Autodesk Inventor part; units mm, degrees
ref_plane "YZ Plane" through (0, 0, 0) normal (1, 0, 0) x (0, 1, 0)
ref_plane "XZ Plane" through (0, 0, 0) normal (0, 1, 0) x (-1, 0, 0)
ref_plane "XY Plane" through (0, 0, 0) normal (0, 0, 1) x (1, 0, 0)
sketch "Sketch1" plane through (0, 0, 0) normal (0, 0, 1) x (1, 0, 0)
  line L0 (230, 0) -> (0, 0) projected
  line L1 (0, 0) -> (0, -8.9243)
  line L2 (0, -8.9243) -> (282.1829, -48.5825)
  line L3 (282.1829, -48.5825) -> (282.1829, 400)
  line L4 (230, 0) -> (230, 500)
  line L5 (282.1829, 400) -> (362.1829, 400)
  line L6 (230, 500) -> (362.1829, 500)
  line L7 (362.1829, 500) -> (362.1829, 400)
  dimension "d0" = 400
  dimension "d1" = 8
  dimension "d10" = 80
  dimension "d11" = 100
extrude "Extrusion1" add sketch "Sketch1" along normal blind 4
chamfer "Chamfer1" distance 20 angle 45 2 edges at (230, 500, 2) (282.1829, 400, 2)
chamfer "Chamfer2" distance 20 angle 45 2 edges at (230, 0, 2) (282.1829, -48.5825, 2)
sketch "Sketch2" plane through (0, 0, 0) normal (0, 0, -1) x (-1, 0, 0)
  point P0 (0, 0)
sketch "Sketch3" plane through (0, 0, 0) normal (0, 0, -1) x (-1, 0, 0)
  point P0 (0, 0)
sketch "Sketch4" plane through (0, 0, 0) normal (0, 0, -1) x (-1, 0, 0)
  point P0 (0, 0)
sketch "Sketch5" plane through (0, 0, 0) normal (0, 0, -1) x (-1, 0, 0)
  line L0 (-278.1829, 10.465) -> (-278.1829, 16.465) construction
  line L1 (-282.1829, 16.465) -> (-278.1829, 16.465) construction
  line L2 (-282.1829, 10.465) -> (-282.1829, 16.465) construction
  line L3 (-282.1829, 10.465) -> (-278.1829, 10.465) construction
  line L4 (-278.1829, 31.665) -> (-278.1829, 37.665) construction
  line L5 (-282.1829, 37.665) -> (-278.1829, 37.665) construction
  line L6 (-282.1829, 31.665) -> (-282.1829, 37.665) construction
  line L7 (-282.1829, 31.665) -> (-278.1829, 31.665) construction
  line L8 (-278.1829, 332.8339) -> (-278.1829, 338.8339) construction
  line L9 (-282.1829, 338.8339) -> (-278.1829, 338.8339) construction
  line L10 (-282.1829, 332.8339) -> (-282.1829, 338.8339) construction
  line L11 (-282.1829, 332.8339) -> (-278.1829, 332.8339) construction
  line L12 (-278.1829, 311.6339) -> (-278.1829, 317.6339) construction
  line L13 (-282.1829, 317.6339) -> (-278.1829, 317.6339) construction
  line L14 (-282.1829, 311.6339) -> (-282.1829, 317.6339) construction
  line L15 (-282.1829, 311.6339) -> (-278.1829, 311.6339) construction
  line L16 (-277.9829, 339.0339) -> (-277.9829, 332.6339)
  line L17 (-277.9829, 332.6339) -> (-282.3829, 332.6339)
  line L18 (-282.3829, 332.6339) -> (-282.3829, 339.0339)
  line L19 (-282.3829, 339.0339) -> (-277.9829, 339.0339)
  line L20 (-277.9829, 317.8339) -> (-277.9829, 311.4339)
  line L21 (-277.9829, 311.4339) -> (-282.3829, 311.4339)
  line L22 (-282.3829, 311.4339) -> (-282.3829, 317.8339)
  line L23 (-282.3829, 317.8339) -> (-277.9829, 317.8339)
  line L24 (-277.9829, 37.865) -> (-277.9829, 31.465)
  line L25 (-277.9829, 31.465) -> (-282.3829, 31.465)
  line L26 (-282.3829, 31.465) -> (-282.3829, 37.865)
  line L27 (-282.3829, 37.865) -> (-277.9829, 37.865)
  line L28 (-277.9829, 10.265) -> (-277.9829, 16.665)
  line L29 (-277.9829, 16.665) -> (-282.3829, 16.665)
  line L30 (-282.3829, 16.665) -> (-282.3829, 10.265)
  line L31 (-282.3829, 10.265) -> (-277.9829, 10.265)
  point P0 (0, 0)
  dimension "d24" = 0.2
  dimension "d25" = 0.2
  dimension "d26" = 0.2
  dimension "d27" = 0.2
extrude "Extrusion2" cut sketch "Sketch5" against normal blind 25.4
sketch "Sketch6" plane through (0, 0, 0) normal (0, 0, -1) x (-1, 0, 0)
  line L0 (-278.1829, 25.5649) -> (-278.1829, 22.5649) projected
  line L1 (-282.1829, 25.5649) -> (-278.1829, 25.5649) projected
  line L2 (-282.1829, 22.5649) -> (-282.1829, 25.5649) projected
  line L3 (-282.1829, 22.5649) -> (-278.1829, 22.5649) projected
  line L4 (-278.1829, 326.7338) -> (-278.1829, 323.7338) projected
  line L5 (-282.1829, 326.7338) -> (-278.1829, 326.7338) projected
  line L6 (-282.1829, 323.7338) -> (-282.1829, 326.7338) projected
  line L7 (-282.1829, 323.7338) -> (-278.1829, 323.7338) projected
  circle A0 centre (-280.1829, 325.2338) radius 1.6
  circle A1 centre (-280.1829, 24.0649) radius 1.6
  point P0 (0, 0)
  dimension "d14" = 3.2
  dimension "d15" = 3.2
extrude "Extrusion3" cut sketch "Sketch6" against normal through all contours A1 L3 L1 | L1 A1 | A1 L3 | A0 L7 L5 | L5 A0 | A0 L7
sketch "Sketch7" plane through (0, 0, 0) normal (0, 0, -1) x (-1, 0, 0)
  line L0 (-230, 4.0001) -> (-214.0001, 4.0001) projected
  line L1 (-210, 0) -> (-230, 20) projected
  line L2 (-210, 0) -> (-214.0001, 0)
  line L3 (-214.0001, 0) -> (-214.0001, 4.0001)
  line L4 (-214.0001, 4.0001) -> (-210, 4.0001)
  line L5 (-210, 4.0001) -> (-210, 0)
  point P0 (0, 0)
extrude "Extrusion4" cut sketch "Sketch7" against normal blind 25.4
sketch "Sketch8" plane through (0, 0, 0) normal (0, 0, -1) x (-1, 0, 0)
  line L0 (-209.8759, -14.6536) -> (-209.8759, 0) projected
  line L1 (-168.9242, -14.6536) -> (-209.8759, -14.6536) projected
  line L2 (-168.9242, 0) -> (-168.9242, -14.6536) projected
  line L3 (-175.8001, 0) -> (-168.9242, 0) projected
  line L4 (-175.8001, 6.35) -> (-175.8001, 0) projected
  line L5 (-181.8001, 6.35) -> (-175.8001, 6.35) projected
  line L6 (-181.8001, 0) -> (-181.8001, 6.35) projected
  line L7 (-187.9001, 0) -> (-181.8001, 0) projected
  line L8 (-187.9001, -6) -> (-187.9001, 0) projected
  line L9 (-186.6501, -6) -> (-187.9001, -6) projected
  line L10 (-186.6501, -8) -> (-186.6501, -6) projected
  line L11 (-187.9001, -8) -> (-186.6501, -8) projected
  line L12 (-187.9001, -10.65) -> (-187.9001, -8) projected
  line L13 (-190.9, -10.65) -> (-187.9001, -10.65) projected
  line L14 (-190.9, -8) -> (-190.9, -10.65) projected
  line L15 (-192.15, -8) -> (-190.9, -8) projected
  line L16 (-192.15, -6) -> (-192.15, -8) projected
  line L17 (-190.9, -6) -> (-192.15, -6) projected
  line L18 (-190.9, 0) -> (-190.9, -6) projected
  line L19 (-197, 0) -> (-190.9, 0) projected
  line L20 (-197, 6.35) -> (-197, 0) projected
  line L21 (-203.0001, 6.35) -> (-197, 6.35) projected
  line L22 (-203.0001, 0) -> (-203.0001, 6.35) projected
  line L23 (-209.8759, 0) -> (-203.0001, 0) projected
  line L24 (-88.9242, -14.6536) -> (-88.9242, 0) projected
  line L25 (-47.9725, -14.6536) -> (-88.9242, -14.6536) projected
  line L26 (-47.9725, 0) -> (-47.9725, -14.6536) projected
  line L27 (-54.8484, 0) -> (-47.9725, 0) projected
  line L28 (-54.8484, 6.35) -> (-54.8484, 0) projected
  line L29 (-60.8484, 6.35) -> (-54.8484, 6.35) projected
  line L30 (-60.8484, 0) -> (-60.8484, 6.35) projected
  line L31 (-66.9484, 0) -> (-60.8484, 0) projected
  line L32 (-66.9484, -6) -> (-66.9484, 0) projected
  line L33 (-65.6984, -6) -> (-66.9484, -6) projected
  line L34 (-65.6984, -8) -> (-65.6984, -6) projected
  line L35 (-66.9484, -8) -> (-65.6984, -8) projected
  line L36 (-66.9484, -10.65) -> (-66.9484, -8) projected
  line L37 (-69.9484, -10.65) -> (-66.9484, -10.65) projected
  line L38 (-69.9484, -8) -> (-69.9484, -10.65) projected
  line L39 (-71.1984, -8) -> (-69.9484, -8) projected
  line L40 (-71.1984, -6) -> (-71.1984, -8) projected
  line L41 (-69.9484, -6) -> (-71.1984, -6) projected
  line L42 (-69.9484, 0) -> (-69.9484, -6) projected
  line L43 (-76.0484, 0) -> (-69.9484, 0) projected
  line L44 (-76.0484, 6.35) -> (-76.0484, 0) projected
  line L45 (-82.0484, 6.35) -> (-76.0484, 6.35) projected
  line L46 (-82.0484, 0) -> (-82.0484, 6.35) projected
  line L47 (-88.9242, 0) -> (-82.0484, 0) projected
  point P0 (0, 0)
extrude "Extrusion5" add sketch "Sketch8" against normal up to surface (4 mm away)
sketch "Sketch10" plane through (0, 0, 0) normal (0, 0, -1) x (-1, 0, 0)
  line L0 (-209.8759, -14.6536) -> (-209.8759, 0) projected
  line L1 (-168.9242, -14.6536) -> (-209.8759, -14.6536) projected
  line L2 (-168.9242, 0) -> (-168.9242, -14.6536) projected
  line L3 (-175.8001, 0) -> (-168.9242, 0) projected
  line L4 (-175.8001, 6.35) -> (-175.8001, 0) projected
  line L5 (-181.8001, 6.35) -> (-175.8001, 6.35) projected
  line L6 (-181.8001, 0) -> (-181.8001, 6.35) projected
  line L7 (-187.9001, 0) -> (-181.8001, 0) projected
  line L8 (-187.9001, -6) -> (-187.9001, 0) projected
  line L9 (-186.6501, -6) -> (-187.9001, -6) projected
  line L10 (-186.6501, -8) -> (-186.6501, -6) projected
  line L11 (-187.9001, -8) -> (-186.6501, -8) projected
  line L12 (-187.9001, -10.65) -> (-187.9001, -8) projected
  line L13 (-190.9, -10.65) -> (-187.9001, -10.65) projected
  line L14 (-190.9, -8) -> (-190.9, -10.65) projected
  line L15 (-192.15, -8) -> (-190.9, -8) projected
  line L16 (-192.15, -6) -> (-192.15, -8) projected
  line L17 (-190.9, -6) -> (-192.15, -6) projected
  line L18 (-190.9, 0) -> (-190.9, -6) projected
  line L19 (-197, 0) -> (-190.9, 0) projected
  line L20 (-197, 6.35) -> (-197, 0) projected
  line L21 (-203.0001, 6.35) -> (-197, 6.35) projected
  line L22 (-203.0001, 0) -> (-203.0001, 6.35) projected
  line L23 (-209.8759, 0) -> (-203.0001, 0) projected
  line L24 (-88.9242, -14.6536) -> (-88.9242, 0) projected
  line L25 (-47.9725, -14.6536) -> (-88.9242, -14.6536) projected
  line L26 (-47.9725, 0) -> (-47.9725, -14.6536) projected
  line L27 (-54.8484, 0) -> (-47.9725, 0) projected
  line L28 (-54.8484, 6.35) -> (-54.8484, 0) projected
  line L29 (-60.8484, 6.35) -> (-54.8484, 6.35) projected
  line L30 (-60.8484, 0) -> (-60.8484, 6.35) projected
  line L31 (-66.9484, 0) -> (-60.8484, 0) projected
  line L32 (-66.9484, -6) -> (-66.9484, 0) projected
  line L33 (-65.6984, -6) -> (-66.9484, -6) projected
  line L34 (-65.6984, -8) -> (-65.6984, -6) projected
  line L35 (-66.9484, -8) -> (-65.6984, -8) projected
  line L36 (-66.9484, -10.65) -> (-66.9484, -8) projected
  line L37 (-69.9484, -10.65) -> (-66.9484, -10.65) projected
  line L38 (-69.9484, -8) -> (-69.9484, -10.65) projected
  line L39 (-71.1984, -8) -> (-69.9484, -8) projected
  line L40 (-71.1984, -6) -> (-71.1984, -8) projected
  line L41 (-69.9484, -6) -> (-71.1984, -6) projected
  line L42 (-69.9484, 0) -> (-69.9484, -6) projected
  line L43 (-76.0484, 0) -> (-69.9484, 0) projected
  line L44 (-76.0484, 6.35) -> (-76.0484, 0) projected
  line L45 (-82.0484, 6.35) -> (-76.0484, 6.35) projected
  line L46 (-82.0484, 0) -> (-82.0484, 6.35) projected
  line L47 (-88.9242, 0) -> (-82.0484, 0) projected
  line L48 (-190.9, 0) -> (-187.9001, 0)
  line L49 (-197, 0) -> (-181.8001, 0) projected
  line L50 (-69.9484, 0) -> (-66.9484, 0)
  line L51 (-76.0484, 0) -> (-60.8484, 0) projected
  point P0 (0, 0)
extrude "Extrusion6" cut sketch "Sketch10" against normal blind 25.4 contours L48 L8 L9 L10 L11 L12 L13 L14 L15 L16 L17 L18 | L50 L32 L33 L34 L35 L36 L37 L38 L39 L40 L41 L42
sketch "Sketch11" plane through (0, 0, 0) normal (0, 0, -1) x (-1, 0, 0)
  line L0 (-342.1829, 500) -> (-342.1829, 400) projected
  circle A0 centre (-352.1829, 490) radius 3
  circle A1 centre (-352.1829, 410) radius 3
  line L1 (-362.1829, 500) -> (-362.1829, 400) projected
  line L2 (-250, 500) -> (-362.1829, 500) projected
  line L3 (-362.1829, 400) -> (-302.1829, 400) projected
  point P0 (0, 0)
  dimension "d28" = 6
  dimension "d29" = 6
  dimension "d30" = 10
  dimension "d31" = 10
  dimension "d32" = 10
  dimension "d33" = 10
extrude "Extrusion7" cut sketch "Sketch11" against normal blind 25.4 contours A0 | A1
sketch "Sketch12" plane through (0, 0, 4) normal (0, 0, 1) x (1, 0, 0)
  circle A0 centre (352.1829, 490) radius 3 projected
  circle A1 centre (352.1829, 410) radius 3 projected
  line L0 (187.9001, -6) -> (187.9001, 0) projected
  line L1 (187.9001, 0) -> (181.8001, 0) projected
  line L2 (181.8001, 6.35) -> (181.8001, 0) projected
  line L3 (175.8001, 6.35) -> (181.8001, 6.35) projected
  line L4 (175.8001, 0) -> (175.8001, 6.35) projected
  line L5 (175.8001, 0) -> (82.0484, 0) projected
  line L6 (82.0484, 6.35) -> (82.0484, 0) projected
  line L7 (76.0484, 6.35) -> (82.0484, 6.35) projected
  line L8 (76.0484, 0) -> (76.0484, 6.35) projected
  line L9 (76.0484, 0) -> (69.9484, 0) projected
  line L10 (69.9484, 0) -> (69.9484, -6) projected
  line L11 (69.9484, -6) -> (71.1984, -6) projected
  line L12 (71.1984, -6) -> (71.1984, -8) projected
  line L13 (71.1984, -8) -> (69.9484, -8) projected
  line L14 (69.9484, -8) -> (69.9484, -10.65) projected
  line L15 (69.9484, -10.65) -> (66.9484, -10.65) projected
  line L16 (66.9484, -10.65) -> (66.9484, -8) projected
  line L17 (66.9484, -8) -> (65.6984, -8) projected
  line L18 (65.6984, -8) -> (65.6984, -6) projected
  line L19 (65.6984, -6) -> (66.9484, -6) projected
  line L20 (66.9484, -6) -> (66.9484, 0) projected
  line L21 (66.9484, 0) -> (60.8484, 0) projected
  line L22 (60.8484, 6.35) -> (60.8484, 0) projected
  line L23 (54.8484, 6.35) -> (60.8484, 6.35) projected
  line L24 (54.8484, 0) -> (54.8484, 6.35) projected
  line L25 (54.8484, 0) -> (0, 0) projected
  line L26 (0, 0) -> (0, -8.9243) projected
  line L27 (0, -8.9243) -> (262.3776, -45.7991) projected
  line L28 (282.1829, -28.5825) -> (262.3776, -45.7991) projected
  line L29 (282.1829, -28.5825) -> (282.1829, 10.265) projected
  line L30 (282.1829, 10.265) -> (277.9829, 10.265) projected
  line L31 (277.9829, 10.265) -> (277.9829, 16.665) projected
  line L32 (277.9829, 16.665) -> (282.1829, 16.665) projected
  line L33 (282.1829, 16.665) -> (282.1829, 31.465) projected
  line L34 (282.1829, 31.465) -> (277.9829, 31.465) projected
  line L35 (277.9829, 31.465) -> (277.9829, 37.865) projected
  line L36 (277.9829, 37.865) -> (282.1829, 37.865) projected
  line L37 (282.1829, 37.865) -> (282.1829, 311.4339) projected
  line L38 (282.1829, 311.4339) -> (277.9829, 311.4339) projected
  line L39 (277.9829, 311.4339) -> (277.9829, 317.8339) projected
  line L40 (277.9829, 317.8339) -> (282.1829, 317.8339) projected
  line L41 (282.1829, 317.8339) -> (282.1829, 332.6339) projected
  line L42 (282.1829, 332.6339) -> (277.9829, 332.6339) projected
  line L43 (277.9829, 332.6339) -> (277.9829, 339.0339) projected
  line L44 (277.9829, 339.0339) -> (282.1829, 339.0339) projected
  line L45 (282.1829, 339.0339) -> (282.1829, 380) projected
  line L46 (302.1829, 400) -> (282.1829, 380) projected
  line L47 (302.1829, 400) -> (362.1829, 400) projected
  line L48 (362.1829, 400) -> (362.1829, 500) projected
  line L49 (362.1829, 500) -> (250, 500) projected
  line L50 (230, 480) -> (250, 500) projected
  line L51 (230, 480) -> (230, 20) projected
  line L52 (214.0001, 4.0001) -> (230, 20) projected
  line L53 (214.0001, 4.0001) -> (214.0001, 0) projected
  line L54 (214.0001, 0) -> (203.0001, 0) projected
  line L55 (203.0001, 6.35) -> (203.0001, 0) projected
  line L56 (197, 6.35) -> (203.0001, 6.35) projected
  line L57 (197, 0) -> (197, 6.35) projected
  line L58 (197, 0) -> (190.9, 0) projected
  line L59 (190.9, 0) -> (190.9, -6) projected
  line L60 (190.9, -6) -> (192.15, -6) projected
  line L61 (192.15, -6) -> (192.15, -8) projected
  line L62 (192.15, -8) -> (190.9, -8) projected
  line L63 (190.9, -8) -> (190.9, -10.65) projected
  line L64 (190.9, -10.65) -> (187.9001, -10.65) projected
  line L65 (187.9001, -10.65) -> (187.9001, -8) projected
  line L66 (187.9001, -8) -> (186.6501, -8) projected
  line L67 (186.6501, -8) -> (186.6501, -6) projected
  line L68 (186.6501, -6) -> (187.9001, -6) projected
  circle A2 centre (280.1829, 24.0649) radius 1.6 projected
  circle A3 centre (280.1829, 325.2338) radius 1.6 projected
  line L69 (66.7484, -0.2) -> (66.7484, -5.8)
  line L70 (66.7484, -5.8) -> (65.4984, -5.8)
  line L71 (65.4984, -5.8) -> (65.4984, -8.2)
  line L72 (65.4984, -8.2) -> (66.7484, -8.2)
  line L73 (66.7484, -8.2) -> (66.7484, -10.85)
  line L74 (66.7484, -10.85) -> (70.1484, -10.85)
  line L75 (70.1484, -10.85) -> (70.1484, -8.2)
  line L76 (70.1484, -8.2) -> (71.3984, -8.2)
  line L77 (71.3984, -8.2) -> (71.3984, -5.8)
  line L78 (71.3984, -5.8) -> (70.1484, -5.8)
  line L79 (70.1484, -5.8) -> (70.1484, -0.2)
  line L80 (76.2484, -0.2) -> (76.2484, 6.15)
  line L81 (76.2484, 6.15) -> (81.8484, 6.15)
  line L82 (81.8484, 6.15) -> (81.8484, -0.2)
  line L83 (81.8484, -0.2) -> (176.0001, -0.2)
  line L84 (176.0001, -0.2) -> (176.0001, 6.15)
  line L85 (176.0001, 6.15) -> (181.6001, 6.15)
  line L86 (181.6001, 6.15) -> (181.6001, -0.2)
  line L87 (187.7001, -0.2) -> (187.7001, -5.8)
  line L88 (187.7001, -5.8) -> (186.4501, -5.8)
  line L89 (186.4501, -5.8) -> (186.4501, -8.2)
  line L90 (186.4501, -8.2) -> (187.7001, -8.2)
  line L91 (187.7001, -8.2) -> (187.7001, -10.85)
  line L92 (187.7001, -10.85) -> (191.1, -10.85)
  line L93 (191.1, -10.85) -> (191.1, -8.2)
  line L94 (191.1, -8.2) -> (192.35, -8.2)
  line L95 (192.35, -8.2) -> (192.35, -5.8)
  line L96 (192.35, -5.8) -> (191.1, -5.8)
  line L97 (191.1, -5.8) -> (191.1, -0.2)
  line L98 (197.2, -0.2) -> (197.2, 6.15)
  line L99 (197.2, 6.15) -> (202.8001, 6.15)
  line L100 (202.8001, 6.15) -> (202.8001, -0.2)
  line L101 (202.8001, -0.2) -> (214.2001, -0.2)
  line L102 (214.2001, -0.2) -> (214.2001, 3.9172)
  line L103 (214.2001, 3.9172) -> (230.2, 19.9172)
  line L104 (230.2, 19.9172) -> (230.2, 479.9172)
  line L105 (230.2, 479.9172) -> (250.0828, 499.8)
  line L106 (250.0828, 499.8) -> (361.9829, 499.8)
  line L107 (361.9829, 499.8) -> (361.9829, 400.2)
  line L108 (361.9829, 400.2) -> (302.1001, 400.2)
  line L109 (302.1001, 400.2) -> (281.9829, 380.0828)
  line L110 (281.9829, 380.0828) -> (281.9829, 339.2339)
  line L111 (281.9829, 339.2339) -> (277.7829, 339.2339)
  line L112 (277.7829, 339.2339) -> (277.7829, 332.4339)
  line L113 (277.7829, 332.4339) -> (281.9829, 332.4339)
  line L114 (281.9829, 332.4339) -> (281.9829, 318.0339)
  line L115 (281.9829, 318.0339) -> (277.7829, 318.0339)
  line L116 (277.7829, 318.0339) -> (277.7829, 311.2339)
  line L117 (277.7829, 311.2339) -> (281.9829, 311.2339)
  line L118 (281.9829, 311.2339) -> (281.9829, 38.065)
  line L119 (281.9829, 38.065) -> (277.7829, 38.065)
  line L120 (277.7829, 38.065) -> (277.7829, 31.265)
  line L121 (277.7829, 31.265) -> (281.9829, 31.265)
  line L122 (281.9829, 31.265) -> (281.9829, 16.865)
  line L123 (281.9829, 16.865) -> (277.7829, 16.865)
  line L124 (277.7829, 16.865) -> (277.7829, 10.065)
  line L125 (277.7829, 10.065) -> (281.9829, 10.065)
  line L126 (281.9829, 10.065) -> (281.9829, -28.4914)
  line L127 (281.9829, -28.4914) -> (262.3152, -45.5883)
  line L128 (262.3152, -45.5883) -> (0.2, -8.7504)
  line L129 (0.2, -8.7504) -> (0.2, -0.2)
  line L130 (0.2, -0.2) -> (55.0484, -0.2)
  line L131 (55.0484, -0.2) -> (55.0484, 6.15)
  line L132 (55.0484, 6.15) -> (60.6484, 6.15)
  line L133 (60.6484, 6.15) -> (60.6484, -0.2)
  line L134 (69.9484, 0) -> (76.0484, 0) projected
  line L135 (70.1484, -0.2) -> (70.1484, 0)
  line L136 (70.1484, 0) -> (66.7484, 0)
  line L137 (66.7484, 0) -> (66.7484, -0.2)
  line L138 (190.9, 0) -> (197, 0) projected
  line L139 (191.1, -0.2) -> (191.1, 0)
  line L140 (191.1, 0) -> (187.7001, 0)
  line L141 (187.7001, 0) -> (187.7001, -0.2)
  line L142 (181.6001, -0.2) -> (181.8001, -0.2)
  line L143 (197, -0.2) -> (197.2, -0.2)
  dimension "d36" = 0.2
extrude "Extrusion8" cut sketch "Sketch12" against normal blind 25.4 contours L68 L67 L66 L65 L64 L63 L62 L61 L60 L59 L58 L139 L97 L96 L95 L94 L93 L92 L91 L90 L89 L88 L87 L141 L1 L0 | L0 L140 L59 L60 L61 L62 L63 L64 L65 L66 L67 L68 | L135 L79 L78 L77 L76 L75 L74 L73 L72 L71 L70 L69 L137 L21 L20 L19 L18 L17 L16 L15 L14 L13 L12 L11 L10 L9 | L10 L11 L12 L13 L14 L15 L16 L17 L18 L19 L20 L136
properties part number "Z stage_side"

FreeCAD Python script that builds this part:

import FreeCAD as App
import Part
import Sketcher

V = App.Vector
Q = App.Units.Quantity


def edges_at(feature, points):
    """Names of the edges that pass closest to the given points."""
    edges = feature.Shape.Edges
    near = lambda p: min(range(len(edges)), key=lambda i: edges[i].distToShape(Part.Vertex(*p))[0])
    return sorted({f"Edge{near(p) + 1}" for p in points})


def add_polygon(sketch, points):
    """Adds a closed chain of lines whose ends are joined by coincident constraints."""
    first, n = sketch.GeometryCount, len(points)
    for a, b in zip(points, points[1:] + points[:1]):
        sketch.addGeometry(Part.LineSegment(App.Vector(*a, 0), App.Vector(*b, 0)), False)
    for i in range(n):
        sketch.addConstraint(Sketcher.Constraint("Coincident", first + i, 2, first + (i + 1) % n, 1))

doc = App.newDocument("Part")
params = doc.addObject("Spreadsheet::Sheet", "Params")
for row, (alias, value) in enumerate([
    ("sketch1_width", "80 mm"),
    ("sketch1_height", "100 mm"),
    ("sketch1_width2", "230 mm"),
    ("pad1_length", "4 mm"),
    ("chamfer_size", "20 mm"),
    ("chamfer2_size", "20 mm"),
    ("sketch2_width", "4.4 mm"),
    ("sketch2_height", "6.4 mm"),
    ("pocket1_length", "25.4 mm"),
    ("sketch3_diameter", "3.2 mm"),
    ("sketch4_width", "4 mm"),
    ("pocket3_length", "25.4 mm"),
    ("sketch5_width", "6 mm"),
    ("sketch5_width2", "3 mm"),
    ("sketch5_height", "2 mm"),
    ("sketch5_width3", "6.1 mm"),
    ("sketch5_width4", "1.25 mm"),
    ("pad2_length", "4 mm"),
    ("sketch6_width", "3 mm"),
    ("sketch6_height", "6 mm"),
    ("sketch6_height2", "2 mm"),
    ("sketch6_width2", "1.25 mm"),
    ("sketch6_height3", "2.65 mm"),
    ("pocket4_length", "25.4 mm"),
    ("sketch7_diameter", "6 mm"),
    ("pocket5_length", "25.4 mm"),
    ("sketch8_width", "3.4 mm"),
    ("sketch8_height", "5.8 mm"),
    ("sketch8_height2", "2.4 mm"),
    ("sketch8_width2", "1.25 mm"),
    ("sketch8_height3", "2.65 mm"),
    ("pocket6_length", "25.4 mm"),
], start=1):
    params.set(f"A{row}", alias)
    params.set(f"B{row}", "=" + value)
    params.setAlias(f"B{row}", alias)

body = doc.addObject("PartDesign::Body", "Body")

sketch1 = doc.addObject("Sketcher::SketchObject", "Sketch")
body.addObject(sketch1)
sketch1.AttachmentSupport = (doc.XY_Plane, [""])
sketch1.MapMode = "FlatFace"
add_polygon(sketch1, [(230, 500), (230, 0), (0, 0), (0, -8.9243), (282.1829, -48.5825), (282.1829, 400), (362.1829, 400), (362.1829, 500)])
sketch1.addConstraint(Sketcher.Constraint("Vertical", 0))
sketch1.addConstraint(Sketcher.Constraint("Horizontal", 1))
sketch1.addConstraint(Sketcher.Constraint("Vertical", 2))
sketch1.addConstraint(Sketcher.Constraint("Vertical", 4))
sketch1.addConstraint(Sketcher.Constraint("Horizontal", 5))
sketch1.addConstraint(Sketcher.Constraint("Vertical", 6))
sketch1.addConstraint(Sketcher.Constraint("Horizontal", 7))
sketch1.addConstraint(Sketcher.Constraint("Coincident", 1, 2, -1, 1))
sketch1.addConstraint(Sketcher.Constraint("DistanceX", 5, 1, 5, 2, Q("80 mm")))
sketch1.addConstraint(Sketcher.Constraint("DistanceY", 6, 1, 6, 2, Q("100 mm")))
sketch1.addConstraint(Sketcher.Constraint("Angle", 3, Q("-8 deg")))
sketch1.addConstraint(Sketcher.Constraint("DistanceY", -1, 1, 4, 2, Q("400 mm")))
sketch1.addConstraint(Sketcher.Constraint("DistanceX", 1, 2, 1, 1, Q("230 mm")))
sketch1.addConstraint(Sketcher.Constraint("DistanceX", 7, 2, 7, 1, Q("132.183 mm")))
sketch1.addConstraint(Sketcher.Constraint("DistanceY", 2, 2, 2, 1, Q("8.9243 mm")))
sketch1.setExpression("Constraints[16]", "Params.sketch1_width")
sketch1.setExpression("Constraints[17]", "Params.sketch1_height")
sketch1.setExpression("Constraints[20]", "Params.sketch1_width2")
pad1 = doc.addObject("PartDesign::Pad", "Pad")
body.addObject(pad1)
pad1.Profile = sketch1
pad1.setExpression("Length", "Params.pad1_length")
doc.recompute()

chamfer = doc.addObject("PartDesign::Chamfer", "Chamfer")
body.addObject(chamfer)
chamfer.Base = (pad1, edges_at(pad1, [(230, 500, 2), (282.183, 400, 2)]))
chamfer.setExpression("Size", "Params.chamfer_size")
doc.recompute()

chamfer2 = doc.addObject("PartDesign::Chamfer", "Chamfer001")
body.addObject(chamfer2)
chamfer2.Base = (chamfer, edges_at(chamfer, [(230, 0, 2), (282.183, -48.583, 2)]))
chamfer2.setExpression("Size", "Params.chamfer2_size")

sketch2 = doc.addObject("Sketcher::SketchObject", "Sketch001")
body.addObject(sketch2)
sketch2.AttachmentSupport = (doc.XY_Plane, [""])
sketch2.MapMode = "FlatFace"
add_polygon(sketch2, [(277.9829, 332.6339), (277.9829, 339.0339), (282.3829, 339.0339), (282.3829, 332.6339)])
add_polygon(sketch2, [(277.9829, 311.4339), (277.9829, 317.8339), (282.3829, 317.8339), (282.3829, 311.4339)])
add_polygon(sketch2, [(277.9829, 31.465), (277.9829, 37.865), (282.3829, 37.865), (282.3829, 31.465)])
add_polygon(sketch2, [(282.3829, 10.265), (277.9829, 10.265), (277.9829, 16.665), (282.3829, 16.665)])
sketch2.addConstraint(Sketcher.Constraint("Vertical", 0))
sketch2.addConstraint(Sketcher.Constraint("Horizontal", 1))
sketch2.addConstraint(Sketcher.Constraint("Vertical", 2))
sketch2.addConstraint(Sketcher.Constraint("Horizontal", 3))
sketch2.addConstraint(Sketcher.Constraint("Vertical", 4))
sketch2.addConstraint(Sketcher.Constraint("Horizontal", 5))
sketch2.addConstraint(Sketcher.Constraint("Vertical", 6))
sketch2.addConstraint(Sketcher.Constraint("Horizontal", 7))
sketch2.addConstraint(Sketcher.Constraint("Vertical", 8))
sketch2.addConstraint(Sketcher.Constraint("Horizontal", 9))
sketch2.addConstraint(Sketcher.Constraint("Vertical", 10))
sketch2.addConstraint(Sketcher.Constraint("Horizontal", 11))
sketch2.addConstraint(Sketcher.Constraint("Horizontal", 12))
sketch2.addConstraint(Sketcher.Constraint("Vertical", 13))
sketch2.addConstraint(Sketcher.Constraint("Horizontal", 14))
sketch2.addConstraint(Sketcher.Constraint("Vertical", 15))
sketch2.addConstraint(Sketcher.Constraint("Vertical", 3, 2, 4, 2))
sketch2.addConstraint(Sketcher.Constraint("Vertical", 2, 2, 5, 2))
sketch2.addConstraint(Sketcher.Constraint("Vertical", 7, 2, 8, 2))
sketch2.addConstraint(Sketcher.Constraint("Vertical", 6, 2, 9, 2))
sketch2.addConstraint(Sketcher.Constraint("Vertical", 11, 2, 12, 2))
sketch2.addConstraint(Sketcher.Constraint("Vertical", 10, 2, 14, 2))
sketch2.addConstraint(Sketcher.Constraint("Equal", 2, 4))
sketch2.addConstraint(Sketcher.Constraint("Equal", 6, 8))
sketch2.addConstraint(Sketcher.Constraint("Equal", 10, 13))
sketch2.addConstraint(Sketcher.Constraint("DistanceX", 1, 1, 1, 2, Q("4.4 mm")))
sketch2.addConstraint(Sketcher.Constraint("DistanceY", 0, 1, 0, 2, Q("6.4 mm")))
sketch2.addConstraint(Sketcher.Constraint("DistanceY", 4, 2, 3, 2, Q("14.8 mm")))
sketch2.addConstraint(Sketcher.Constraint("DistanceY", 12, 2, 11, 2, Q("21.2 mm")))
sketch2.addConstraint(Sketcher.Constraint("DistanceX", -1, 1, 0, 2, Q("277.983 mm")))
sketch2.addConstraint(Sketcher.Constraint("DistanceY", -1, 1, 0, 2, Q("339.034 mm")))
sketch2.addConstraint(Sketcher.Constraint("DistanceY", -1, 1, 8, 2, Q("37.865 mm")))
sketch2.setExpression("Constraints[41]", "Params.sketch2_width")
sketch2.setExpression("Constraints[42]", "Params.sketch2_height")
pocket1 = doc.addObject("PartDesign::Pocket", "Pocket")
body.addObject(pocket1)
pocket1.Profile = sketch2
pocket1.setExpression("Length", "Params.pocket1_length")
pocket1.Reversed = True

sketch3 = doc.addObject("Sketcher::SketchObject", "Sketch002")
body.addObject(sketch3)
sketch3.AttachmentSupport = (doc.XY_Plane, [""])
sketch3.MapMode = "FlatFace"
sketch3.addGeometry(Part.Circle(V(280.1829, 24.0649, 0), V(0, 0, 1), 1.6), False)
sketch3.addGeometry(Part.Circle(V(280.1829, 325.2338, 0), V(0, 0, 1), 1.6), False)
sketch3.addConstraint(Sketcher.Constraint("Equal", 0, 1))
sketch3.addConstraint(Sketcher.Constraint("Vertical", 0, 3, 1, 3))
sketch3.addConstraint(Sketcher.Constraint("Diameter", 0, Q("3.2 mm")))
sketch3.addConstraint(Sketcher.Constraint("DistanceX", -1, 1, 0, 3, Q("280.183 mm")))
sketch3.addConstraint(Sketcher.Constraint("DistanceY", -1, 1, 0, 3, Q("24.065 mm")))
sketch3.addConstraint(Sketcher.Constraint("DistanceY", 0, 3, 1, 3, Q("301.169 mm")))
sketch3.setExpression("Constraints[2]", "Params.sketch3_diameter")
pocket2 = doc.addObject("PartDesign::Pocket", "Pocket001")
body.addObject(pocket2)
pocket2.Profile = sketch3
pocket2.Type = "ThroughAll"
pocket2.Reversed = True

sketch4 = doc.addObject("Sketcher::SketchObject", "Sketch003")
body.addObject(sketch4)
sketch4.AttachmentSupport = (doc.XY_Plane, [""])
sketch4.MapMode = "FlatFace"
add_polygon(sketch4, [(214.0001, 0), (210, 0), (210, 4.0001), (214.0001, 4.0001)])
sketch4.addConstraint(Sketcher.Constraint("Horizontal", 0))
sketch4.addConstraint(Sketcher.Constraint("Vertical", 1))
sketch4.addConstraint(Sketcher.Constraint("Horizontal", 2))
sketch4.addConstraint(Sketcher.Constraint("Vertical", 3))
sketch4.addConstraint(Sketcher.Constraint("PointOnObject", 0, 2, -1))
sketch4.addConstraint(Sketcher.Constraint("Equal", 2, 1))
sketch4.addConstraint(Sketcher.Constraint("DistanceX", 0, 2, 0, 1, Q("4 mm")))
sketch4.addConstraint(Sketcher.Constraint("DistanceX", -1, 1, 0, 2, Q("210 mm")))
sketch4.setExpression("Constraints[10]", "Params.sketch4_width")
pocket3 = doc.addObject("PartDesign::Pocket", "Pocket002")
body.addObject(pocket3)
pocket3.Profile = sketch4
pocket3.setExpression("Length", "Params.pocket3_length")
pocket3.Reversed = True

sketch5 = doc.addObject("Sketcher::SketchObject", "Sketch004")
body.addObject(sketch5)
sketch5.AttachmentSupport = (doc.XY_Plane, [""])
sketch5.MapMode = "FlatFace"
add_polygon(sketch5, [(209.8759, 0), (209.8759, -14.6536), (168.9242, -14.6536), (168.9242, 0), (175.8001, 0), (175.8001, 6.35), (181.8001, 6.35), (181.8001, 0), (187.9001, 0), (187.9001, -6), (186.6501, -6), (186.6501, -8), (187.9001, -8), (187.9001, -10.65), (190.9, -10.65), (190.9, -8), (192.15, -8), (192.15, -6), (190.9, -6), (190.9, 0), (197, 0), (197, 6.35), (203.0001, 6.35), (203.0001, 0)])
add_polygon(sketch5, [(88.9242, 0), (88.9242, -14.6536), (47.9725, -14.6536), (47.9725, 0), (54.8484, 0), (54.8484, 6.35), (60.8484, 6.35), (60.8484, 0), (66.9484, 0), (66.9484, -6), (65.6984, -6), (65.6984, -8), (66.9484, -8), (66.9484, -10.65), (69.9484, -10.65), (69.9484, -8), (71.1984, -8), (71.1984, -6), (69.9484, -6), (69.9484, 0), (76.0484, 0), (76.0484, 6.35), (82.0484, 6.35), (82.0484, 0)])
sketch5.addConstraint(Sketcher.Constraint("Vertical", 0))
sketch5.addConstraint(Sketcher.Constraint("Horizontal", 1))
sketch5.addConstraint(Sketcher.Constraint("Vertical", 2))
sketch5.addConstraint(Sketcher.Constraint("Horizontal", 3))
sketch5.addConstraint(Sketcher.Constraint("Vertical", 4))
sketch5.addConstraint(Sketcher.Constraint("Horizontal", 5))
sketch5.addConstraint(Sketcher.Constraint("Vertical", 6))
sketch5.addConstraint(Sketcher.Constraint("Horizontal", 7))
sketch5.addConstraint(Sketcher.Constraint("Vertical", 8))
sketch5.addConstraint(Sketcher.Constraint("Horizontal", 9))
sketch5.addConstraint(Sketcher.Constraint("Vertical", 10))
sketch5.addConstraint(Sketcher.Constraint("Horizontal", 11))
sketch5.addConstraint(Sketcher.Constraint("Vertical", 12))
sketch5.addConstraint(Sketcher.Constraint("Horizontal", 13))
sketch5.addConstraint(Sketcher.Constraint("Vertical", 14))
sketch5.addConstraint(Sketcher.Constraint("Horizontal", 15))
sketch5.addConstraint(Sketcher.Constraint("Vertical", 16))
sketch5.addConstraint(Sketcher.Constraint("Horizontal", 17))
sketch5.addConstraint(Sketcher.Constraint("Vertical", 18))
sketch5.addConstraint(Sketcher.Constraint("Horizontal", 19))
sketch5.addConstraint(Sketcher.Constraint("Vertical", 20))
sketch5.addConstraint(Sketcher.Constraint("Horizontal", 21))
sketch5.addConstraint(Sketcher.Constraint("Vertical", 22))
sketch5.addConstraint(Sketcher.Constraint("Horizontal", 23))
sketch5.addConstraint(Sketcher.Constraint("Vertical", 24))
sketch5.addConstraint(Sketcher.Constraint("Horizontal", 25))
sketch5.addConstraint(Sketcher.Constraint("Vertical", 26))
sketch5.addConstraint(Sketcher.Constraint("Horizontal", 27))
sketch5.addConstraint(Sketcher.Constraint("Vertical", 28))
sketch5.addConstraint(Sketcher.Constraint("Horizontal", 29))
sketch5.addConstraint(Sketcher.Constraint("Vertical", 30))
sketch5.addConstraint(Sketcher.Constraint("Horizontal", 31))
sketch5.addConstraint(Sketcher.Constraint("Vertical", 32))
sketch5.addConstraint(Sketcher.Constraint("Horizontal", 33))
sketch5.addConstraint(Sketcher.Constraint("Vertical", 34))
sketch5.addConstraint(Sketcher.Constraint("Horizontal", 35))
sketch5.addConstraint(Sketcher.Constraint("Vertical", 36))
sketch5.addConstraint(Sketcher.Constraint("Horizontal", 37))
sketch5.addConstraint(Sketcher.Constraint("Vertical", 38))
sketch5.addConstraint(Sketcher.Constraint("Horizontal", 39))
sketch5.addConstraint(Sketcher.Constraint("Vertical", 40))
sketch5.addConstraint(Sketcher.Constraint("Horizontal", 41))
sketch5.addConstraint(Sketcher.Constraint("Vertical", 42))
sketch5.addConstraint(Sketcher.Constraint("Horizontal", 43))
sketch5.addConstraint(Sketcher.Constraint("Vertical", 44))
sketch5.addConstraint(Sketcher.Constraint("Horizontal", 45))
sketch5.addConstraint(Sketcher.Constraint("Vertical", 46))
sketch5.addConstraint(Sketcher.Constraint("Horizontal", 47))
sketch5.addConstraint(Sketcher.Constraint("PointOnObject", 2, 2, -1))
sketch5.addConstraint(Sketcher.Constraint("PointOnObject", 6, 2, -1))
sketch5.addConstraint(Sketcher.Constraint("PointOnObject", 18, 2, -1))
sketch5.addConstraint(Sketcher.Constraint("PointOnObject", 22, 2, -1))
sketch5.addConstraint(Sketcher.Constraint("PointOnObject", 26, 2, -1))
sketch5.addConstraint(Sketcher.Constraint("PointOnObject", 30, 2, -1))
sketch5.addConstraint(Sketcher.Constraint("PointOnObject", 42, 2, -1))
sketch5.addConstraint(Sketcher.Constraint("PointOnObject", 46, 2, -1))
sketch5.addConstraint(Sketcher.Constraint("Horizontal", 11, 2, 14, 2))
sketch5.addConstraint(Sketcher.Constraint("Horizontal", 9, 2, 16, 2))
sketch5.addConstraint(Sketcher.Constraint("Horizontal", 5, 2, 20, 2))
sketch5.addConstraint(Sketcher.Constraint("Horizontal", 1, 2, 24, 2))
sketch5.addConstraint(Sketcher.Constraint("Horizontal", 21, 2, 28, 2))
sketch5.addConstraint(Sketcher.Constraint("Horizontal", 17, 2, 32, 2))
sketch5.addConstraint(Sketcher.Constraint("Horizontal", 15, 2, 34, 2))
sketch5.addConstraint(Sketcher.Constraint("Horizontal", 13, 2, 36, 2))
sketch5.addConstraint(Sketcher.Constraint("Horizontal", 35, 2, 38, 2))
sketch5.addConstraint(Sketcher.Constraint("Horizontal", 33, 2, 40, 2))
sketch5.addConstraint(Sketcher.Constraint("Horizontal", 29, 2, 44, 2))
sketch5.addConstraint(Sketcher.Constraint("Vertical", 8, 2, 11, 2))
sketch5.addConstraint(Sketcher.Constraint("Vertical", 14, 2, 17, 2))
sketch5.addConstraint(Sketcher.Constraint("Vertical", 32, 2, 35, 2))
sketch5.addConstraint(Sketcher.Constraint("Vertical", 38, 2, 41, 2))
sketch5.addConstraint(Sketcher.Constraint("Equal", 11, 15))
sketch5.addConstraint(Sketcher.Constraint("Equal", 7, 19))
sketch5.addConstraint(Sketcher.Constraint("Equal", 5, 21))
sketch5.addConstraint(Sketcher.Constraint("Equal", 3, 23))
sketch5.addConstraint(Sketcher.Constraint("Equal", 1, 25))
sketch5.addConstraint(Sketcher.Constraint("Equal", 23, 27))
sketch5.addConstraint(Sketcher.Constraint("Equal", 21, 29))
sketch5.addConstraint(Sketcher.Constraint("Equal", 19, 31))
sketch5.addConstraint(Sketcher.Constraint("Equal", 17, 33))
sketch5.addConstraint(Sketcher.Constraint("Equal", 13, 37))
sketch5.addConstraint(Sketcher.Constraint("Equal", 35, 39))
sketch5.addConstraint(Sketcher.Constraint("Equal", 31, 43))
sketch5.addConstraint(Sketcher.Constraint("Equal", 29, 45))
sketch5.addConstraint(Sketcher.Constraint("Equal", 45, 8))
sketch5.addConstraint(Sketcher.Constraint("DistanceX", 5, 1, 5, 2, Q("6 mm")))
sketch5.addConstraint(Sketcher.Constraint("DistanceX", 13, 1, 13, 2, Q("3 mm")))
sketch5.addConstraint(Sketcher.Constraint("DistanceY", 10, 2, 10, 1, Q("2 mm")))
sketch5.addConstraint(Sketcher.Constraint("DistanceX", 7, 1, 7, 2, Q("6.1 mm")))
sketch5.addConstraint(Sketcher.Constraint("DistanceX", -1, 1, 19, 2, Q("197 mm")))
sketch5.addConstraint(Sketcher.Constraint("DistanceX", 24, 2, 1, 2, Q("80 mm")))
sketch5.addConstraint(Sketcher.Constraint("DistanceX", 9, 2, 9, 1, Q("1.25 mm")))
sketch5.addConstraint(Sketcher.Constraint("DistanceY", 4, 1, 4, 2, Q("6.35 mm")))
sketch5.addConstraint(Sketcher.Constraint("DistanceY", 12, 2, 12, 1, Q("2.65 mm")))
sketch5.addConstraint(Sketcher.Constraint("DistanceX", 3, 1, 3, 2, Q("6.876 mm")))
sketch5.addConstraint(Sketcher.Constraint("DistanceY", 0, 2, 0, 1, Q("14.6536 mm")))
sketch5.setExpression("Constraints[133]", "Params.sketch5_width")
sketch5.setExpression("Constraints[134]", "Params.sketch5_width2")
sketch5.setExpression("Constraints[135]", "Params.sketch5_height")
sketch5.setExpression("Constraints[136]", "Params.sketch5_width3")
sketch5.setExpression("Constraints[139]", "Params.sketch5_width4")
pad2 = doc.addObject("PartDesign::Pad", "Pad001")
body.addObject(pad2)
pad2.Profile = sketch5
pad2.setExpression("Length", "Params.pad2_length")

sketch6 = doc.addObject("Sketcher::SketchObject", "Sketch005")
body.addObject(sketch6)
sketch6.AttachmentSupport = (doc.XY_Plane, [""])
sketch6.MapMode = "FlatFace"
add_polygon(sketch6, [(187.9001, 0), (190.9, 0), (190.9, -6), (192.15, -6), (192.15, -8), (190.9, -8), (190.9, -10.65), (187.9001, -10.65), (187.9001, -8), (186.6501, -8), (186.6501, -6), (187.9001, -6)])
add_polygon(sketch6, [(66.9484, 0), (69.9484, 0), (69.9484, -6), (71.1984, -6), (71.1984, -8), (69.9484, -8), (69.9484, -10.65), (66.9484, -10.65), (66.9484, -8), (65.6984, -8), (65.6984, -6), (66.9484, -6)])
sketch6.addConstraint(Sketcher.Constraint("Horizontal", 0))
sketch6.addConstraint(Sketcher.Constraint("Vertical", 1))
sketch6.addConstraint(Sketcher.Constraint("Horizontal", 2))
sketch6.addConstraint(Sketcher.Constraint("Vertical", 3))
sketch6.addConstraint(Sketcher.Constraint("Horizontal", 4))
sketch6.addConstraint(Sketcher.Constraint("Vertical", 5))
sketch6.addConstraint(Sketcher.Constraint("Horizontal", 6))
sketch6.addConstraint(Sketcher.Constraint("Vertical", 7))
sketch6.addConstraint(Sketcher.Constraint("Horizontal", 8))
sketch6.addConstraint(Sketcher.Constraint("Vertical", 9))
sketch6.addConstraint(Sketcher.Constraint("Horizontal", 10))
sketch6.addConstraint(Sketcher.Constraint("Vertical", 11))
sketch6.addConstraint(Sketcher.Constraint("Horizontal", 12))
sketch6.addConstraint(Sketcher.Constraint("Vertical", 13))
sketch6.addConstraint(Sketcher.Constraint("Horizontal", 14))
sketch6.addConstraint(Sketcher.Constraint("Vertical", 15))
sketch6.addConstraint(Sketcher.Constraint("Horizontal", 16))
sketch6.addConstraint(Sketcher.Constraint("Vertical", 17))
sketch6.addConstraint(Sketcher.Constraint("Horizontal", 18))
sketch6.addConstraint(Sketcher.Constraint("Vertical", 19))
sketch6.addConstraint(Sketcher.Constraint("Horizontal", 20))
sketch6.addConstraint(Sketcher.Constraint("Vertical", 21))
sketch6.addConstraint(Sketcher.Constraint("Horizontal", 22))
sketch6.addConstraint(Sketcher.Constraint("Vertical", 23))
sketch6.addConstraint(Sketcher.Constraint("PointOnObject", 0, 2, -1))
sketch6.addConstraint(Sketcher.Constraint("PointOnObject", 12, 2, -1))
sketch6.addConstraint(Sketcher.Constraint("Horizontal", 4, 2, 7, 2))
sketch6.addConstraint(Sketcher.Constraint("Horizontal", 2, 2, 9, 2))
sketch6.addConstraint(Sketcher.Constraint("Horizontal", 10, 2, 13, 2))
sketch6.addConstraint(Sketcher.Constraint("Horizontal", 8, 2, 15, 2))
sketch6.addConstraint(Sketcher.Constraint("Horizontal", 6, 2, 17, 2))
sketch6.addConstraint(Sketcher.Constraint("Horizontal", 16, 2, 19, 2))
sketch6.addConstraint(Sketcher.Constraint("Horizontal", 14, 2, 21, 2))
sketch6.addConstraint(Sketcher.Constraint("Vertical", 1, 2, 4, 2))
sketch6.addConstraint(Sketcher.Constraint("Vertical", 7, 2, 10, 2))
sketch6.addConstraint(Sketcher.Constraint("Vertical", 13, 2, 16, 2))
sketch6.addConstraint(Sketcher.Constraint("Vertical", 19, 2, 22, 2))
sketch6.addConstraint(Sketcher.Constraint("Equal", 4, 8))
sketch6.addConstraint(Sketcher.Constraint("Equal", 6, 12))
sketch6.addConstraint(Sketcher.Constraint("Equal", 10, 14))
sketch6.addConstraint(Sketcher.Constraint("Equal", 16, 20))
sketch6.addConstraint(Sketcher.Constraint("DistanceX", 0, 1, 0, 2, Q("3 mm")))
sketch6.addConstraint(Sketcher.Constraint("DistanceY", 1, 2, 1, 1, Q("6 mm")))
sketch6.addConstraint(Sketcher.Constraint("DistanceY", 3, 2, 3, 1, Q("2 mm")))
sketch6.addConstraint(Sketcher.Constraint("DistanceX", 2, 1, 2, 2, Q("1.25 mm")))
sketch6.addConstraint(Sketcher.Constraint("DistanceY", 5, 2, 5, 1, Q("2.65 mm")))
sketch6.addConstraint(Sketcher.Constraint("DistanceX", -1, 1, 0, 2, Q("190.9 mm")))
sketch6.addConstraint(Sketcher.Constraint("DistanceX", -1, 1, 12, 2, Q("69.9484 mm")))
sketch6.setExpression("Constraints[65]", "Params.sketch6_width")
sketch6.setExpression("Constraints[66]", "Params.sketch6_height")
sketch6.setExpression("Constraints[67]", "Params.sketch6_height2")
sketch6.setExpression("Constraints[68]", "Params.sketch6_width2")
sketch6.setExpression("Constraints[69]", "Params.sketch6_height3")
pocket4 = doc.addObject("PartDesign::Pocket", "Pocket003")
body.addObject(pocket4)
pocket4.Profile = sketch6
pocket4.setExpression("Length", "Params.pocket4_length")
pocket4.Reversed = True

sketch7 = doc.addObject("Sketcher::SketchObject", "Sketch006")
body.addObject(sketch7)
sketch7.AttachmentSupport = (doc.XY_Plane, [""])
sketch7.MapMode = "FlatFace"
sketch7.addGeometry(Part.Circle(V(352.1829, 490, 0), V(0, 0, 1), 3), False)
sketch7.addGeometry(Part.Circle(V(352.1829, 410, 0), V(0, 0, 1), 3), False)
sketch7.addConstraint(Sketcher.Constraint("Equal", 0, 1))
sketch7.addConstraint(Sketcher.Constraint("Vertical", 0, 3, 1, 3))
sketch7.addConstraint(Sketcher.Constraint("Diameter", 0, Q("6 mm")))
sketch7.addConstraint(Sketcher.Constraint("DistanceY", -1, 1, 0, 3, Q("490 mm")))
sketch7.addConstraint(Sketcher.Constraint("DistanceY", -1, 1, 1, 3, Q("410 mm")))
sketch7.addConstraint(Sketcher.Constraint("DistanceX", -1, 1, 0, 3, Q("352.183 mm")))
sketch7.setExpression("Constraints[2]", "Params.sketch7_diameter")
pocket5 = doc.addObject("PartDesign::Pocket", "Pocket004")
body.addObject(pocket5)
pocket5.Profile = sketch7
pocket5.setExpression("Length", "Params.pocket5_length")
pocket5.Reversed = True

sketch8 = doc.addObject("Sketcher::SketchObject", "Sketch007")
body.addObject(sketch8)
sketch8.AttachmentSupport = (doc.XY_Plane, [""])
sketch8.MapMode = "FlatFace"
sketch8.AttachmentOffset = App.Placement(V(0, 0, 4), App.Rotation())
add_polygon(sketch8, [(191.1, 0), (187.7001, 0), (187.7001, -5.8), (186.4501, -5.8), (186.4501, -8.2), (187.7001, -8.2), (187.7001, -10.85), (191.1, -10.85), (191.1, -8.2), (192.35, -8.2), (192.35, -5.8), (191.1, -5.8)])
add_polygon(sketch8, [(70.1484, 0), (66.7484, 0), (66.7484, -5.8), (65.4984, -5.8), (65.4984, -8.2), (66.7484, -8.2), (66.7484, -10.85), (70.1484, -10.85), (70.1484, -8.2), (71.3984, -8.2), (71.3984, -5.8), (70.1484, -5.8)])
sketch8.addConstraint(Sketcher.Constraint("Horizontal", 0))
sketch8.addConstraint(Sketcher.Constraint("Vertical", 1))
sketch8.addConstraint(Sketcher.Constraint("Horizontal", 2))
sketch8.addConstraint(Sketcher.Constraint("Vertical", 3))
sketch8.addConstraint(Sketcher.Constraint("Horizontal", 4))
sketch8.addConstraint(Sketcher.Constraint("Vertical", 5))
sketch8.addConstraint(Sketcher.Constraint("Horizontal", 6))
sketch8.addConstraint(Sketcher.Constraint("Vertical", 7))
sketch8.addConstraint(Sketcher.Constraint("Horizontal", 8))
sketch8.addConstraint(Sketcher.Constraint("Vertical", 9))
sketch8.addConstraint(Sketcher.Constraint("Horizontal", 10))
sketch8.addConstraint(Sketcher.Constraint("Vertical", 11))
sketch8.addConstraint(Sketcher.Constraint("Horizontal", 12))
sketch8.addConstraint(Sketcher.Constraint("Vertical", 13))
sketch8.addConstraint(Sketcher.Constraint("Horizontal", 14))
sketch8.addConstraint(Sketcher.Constraint("Vertical", 15))
sketch8.addConstraint(Sketcher.Constraint("Horizontal", 16))
sketch8.addConstraint(Sketcher.Constraint("Vertical", 17))
sketch8.addConstraint(Sketcher.Constraint("Horizontal", 18))
sketch8.addConstraint(Sketcher.Constraint("Vertical", 19))
sketch8.addConstraint(Sketcher.Constraint("Horizontal", 20))
sketch8.addConstraint(Sketcher.Constraint("Vertical", 21))
sketch8.addConstraint(Sketcher.Constraint("Horizontal", 22))
sketch8.addConstraint(Sketcher.Constraint("Vertical", 23))
sketch8.addConstraint(Sketcher.Constraint("PointOnObject", 0, 2, -1))
sketch8.addConstraint(Sketcher.Constraint("PointOnObject", 12, 2, -1))
sketch8.addConstraint(Sketcher.Constraint("Horizontal", 4, 2, 7, 2))
sketch8.addConstraint(Sketcher.Constraint("Horizontal", 2, 2, 9, 2))
sketch8.addConstraint(Sketcher.Constraint("Horizontal", 10, 2, 13, 2))
sketch8.addConstraint(Sketcher.Constraint("Horizontal", 8, 2, 15, 2))
sketch8.addConstraint(Sketcher.Constraint("Horizontal", 6, 2, 17, 2))
sketch8.addConstraint(Sketcher.Constraint("Horizontal", 16, 2, 19, 2))
sketch8.addConstraint(Sketcher.Constraint("Horizontal", 14, 2, 21, 2))
sketch8.addConstraint(Sketcher.Constraint("Vertical", 1, 2, 4, 2))
sketch8.addConstraint(Sketcher.Constraint("Vertical", 7, 2, 10, 2))
sketch8.addConstraint(Sketcher.Constraint("Vertical", 13, 2, 16, 2))
sketch8.addConstraint(Sketcher.Constraint("Vertical", 19, 2, 22, 2))
sketch8.addConstraint(Sketcher.Constraint("Equal", 4, 8))
sketch8.addConstraint(Sketcher.Constraint("Equal", 6, 12))
sketch8.addConstraint(Sketcher.Constraint("Equal", 10, 14))
sketch8.addConstraint(Sketcher.Constraint("Equal", 16, 20))
sketch8.addConstraint(Sketcher.Constraint("DistanceX", 0, 2, 0, 1, Q("3.4 mm")))
sketch8.addConstraint(Sketcher.Constraint("DistanceY", 1, 2, 1, 1, Q("5.8 mm")))
sketch8.addConstraint(Sketcher.Constraint("DistanceY", 3, 2, 3, 1, Q("2.4 mm")))
sketch8.addConstraint(Sketcher.Constraint("DistanceX", 2, 2, 2, 1, Q("1.25 mm")))
sketch8.addConstraint(Sketcher.Constraint("DistanceY", 5, 2, 5, 1, Q("2.65 mm")))
sketch8.addConstraint(Sketcher.Constraint("DistanceX", -1, 1, 0, 2, Q("187.7 mm")))
sketch8.addConstraint(Sketcher.Constraint("DistanceX", -1, 1, 12, 2, Q("66.7484 mm")))
sketch8.setExpression("Constraints[65]", "Params.sketch8_width")
sketch8.setExpression("Constraints[66]", "Params.sketch8_height")
sketch8.setExpression("Constraints[67]", "Params.sketch8_height2")
sketch8.setExpression("Constraints[68]", "Params.sketch8_width2")
sketch8.setExpression("Constraints[69]", "Params.sketch8_height3")
pocket6 = doc.addObject("PartDesign::Pocket", "Pocket005")
body.addObject(pocket6)
pocket6.Profile = sketch8
pocket6.setExpression("Length", "Params.pocket6_length")

doc.recompute()
